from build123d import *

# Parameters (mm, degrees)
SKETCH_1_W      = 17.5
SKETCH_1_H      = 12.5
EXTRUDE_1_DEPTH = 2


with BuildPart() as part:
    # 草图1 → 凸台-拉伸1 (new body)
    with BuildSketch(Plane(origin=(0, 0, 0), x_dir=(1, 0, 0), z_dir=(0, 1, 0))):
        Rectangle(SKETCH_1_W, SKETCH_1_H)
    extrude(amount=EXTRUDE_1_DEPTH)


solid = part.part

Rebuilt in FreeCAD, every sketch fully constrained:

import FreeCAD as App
import Part
import Sketcher

V = App.Vector


def add_polygon(sketch, points):
    """Adds a closed chain of lines whose ends are joined by coincident constraints."""
    first, n = sketch.GeometryCount, len(points)
    for a, b in zip(points, points[1:] + points[:1]):
        sketch.addGeometry(Part.LineSegment(App.Vector(*a, 0), App.Vector(*b, 0)), False)
    for i in range(n):
        sketch.addConstraint(Sketcher.Constraint("Coincident", first + i, 2, first + (i + 1) % n, 1))

doc = App.newDocument("Part")
body = doc.addObject("PartDesign::Body", "Body")

sketch1 = body.newObject("Sketcher::SketchObject", "Sketch")
sketch1.AttachmentSupport = (doc.getObject("XZ_Plane"), [""])
sketch1.MapMode = "FlatFace"
add_polygon(sketch1, [(-8.75, -6.25), (-8.75, 6.25), (8.75, 6.25), (8.75, -6.25)])
sketch1.addConstraint([
    Sketcher.Constraint("Vertical", 0),
    Sketcher.Constraint("Horizontal", 1),
    Sketcher.Constraint("Vertical", 2),
    Sketcher.Constraint("Horizontal", 3),
    Sketcher.Constraint("Symmetric", 0, 2, 2, 2, -1, 1),
    Sketcher.Constraint("DistanceX", 1, 1, 1, 2, 17.5),
    Sketcher.Constraint("DistanceY", 0, 1, 0, 2, 12.5),
])
pad1 = body.newObject("PartDesign::Pad", "Pad")
pad1.Profile = sketch1
pad1.Length = 2
pad1.Reversed = True

doc.recompute()
